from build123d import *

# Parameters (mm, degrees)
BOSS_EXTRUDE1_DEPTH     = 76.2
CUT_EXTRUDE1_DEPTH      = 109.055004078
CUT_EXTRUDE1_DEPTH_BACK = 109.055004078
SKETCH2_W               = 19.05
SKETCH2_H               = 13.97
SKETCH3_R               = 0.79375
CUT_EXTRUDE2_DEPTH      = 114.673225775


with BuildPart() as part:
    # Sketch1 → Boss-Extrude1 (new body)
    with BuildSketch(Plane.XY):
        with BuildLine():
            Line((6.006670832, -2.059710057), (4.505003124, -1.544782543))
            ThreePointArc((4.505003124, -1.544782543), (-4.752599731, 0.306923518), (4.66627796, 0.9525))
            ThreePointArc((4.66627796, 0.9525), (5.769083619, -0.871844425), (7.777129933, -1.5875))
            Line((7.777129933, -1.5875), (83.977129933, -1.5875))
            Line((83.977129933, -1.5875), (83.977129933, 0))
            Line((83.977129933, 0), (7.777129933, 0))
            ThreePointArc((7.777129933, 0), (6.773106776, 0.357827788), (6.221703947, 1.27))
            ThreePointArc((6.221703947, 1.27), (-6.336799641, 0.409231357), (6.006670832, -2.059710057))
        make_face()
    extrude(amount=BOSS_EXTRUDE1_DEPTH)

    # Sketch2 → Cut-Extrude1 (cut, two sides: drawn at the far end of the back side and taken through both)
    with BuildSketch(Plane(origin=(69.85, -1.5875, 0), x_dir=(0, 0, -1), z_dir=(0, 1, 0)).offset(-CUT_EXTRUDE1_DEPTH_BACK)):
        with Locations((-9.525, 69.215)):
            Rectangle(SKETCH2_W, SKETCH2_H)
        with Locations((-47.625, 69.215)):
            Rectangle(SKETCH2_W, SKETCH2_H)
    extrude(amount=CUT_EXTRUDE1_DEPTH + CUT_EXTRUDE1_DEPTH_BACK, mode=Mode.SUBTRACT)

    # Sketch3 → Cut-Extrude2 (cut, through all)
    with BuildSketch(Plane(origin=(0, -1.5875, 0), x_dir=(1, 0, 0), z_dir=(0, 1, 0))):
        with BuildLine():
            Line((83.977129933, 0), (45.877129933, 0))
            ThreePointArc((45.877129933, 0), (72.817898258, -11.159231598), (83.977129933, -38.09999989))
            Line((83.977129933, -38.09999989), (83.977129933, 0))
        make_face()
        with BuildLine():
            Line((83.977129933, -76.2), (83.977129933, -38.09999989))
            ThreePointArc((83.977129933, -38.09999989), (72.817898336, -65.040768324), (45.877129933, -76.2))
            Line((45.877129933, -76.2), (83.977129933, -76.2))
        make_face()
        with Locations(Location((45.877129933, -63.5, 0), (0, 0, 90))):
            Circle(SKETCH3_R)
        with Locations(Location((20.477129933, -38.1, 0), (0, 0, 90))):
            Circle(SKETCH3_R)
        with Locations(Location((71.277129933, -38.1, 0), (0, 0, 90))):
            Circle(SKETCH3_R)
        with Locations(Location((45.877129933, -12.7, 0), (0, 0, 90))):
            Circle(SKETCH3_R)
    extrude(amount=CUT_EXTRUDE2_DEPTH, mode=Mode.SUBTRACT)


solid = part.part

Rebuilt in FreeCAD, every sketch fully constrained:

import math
import FreeCAD as App
import Part
import Sketcher
Q = App.Units.Quantity

doc = App.newDocument("Part")
params = doc.addObject("Spreadsheet::Sheet", "Params")
for row, (alias, value) in enumerate([
    ("sketch1_width", "3 in"),
    ("sketch1_radius", "0.25 in"),
    ("sketch1_radius2", "0.1875 in"),
    ("sketch1_radius3", "0.125 in"),
    ("pad1_length", "3 in"),
    ("sketch2_width", "0.55 in"),
    ("sketch2_height", "0.75 in"),
    ("sketch3_radius", "1.5 in"),
    ("sketch3_diameter", "0.0625 in"),
], start=1):
    params.set(f"A{row}", alias)
    params.set(f"B{row}", "=" + value)
    params.setAlias(f"B{row}", alias)

body = doc.addObject("PartDesign::Body", "Body")

sketch1 = body.newObject("Sketcher::SketchObject", "Sketch")
sketch1.AttachmentSupport = (doc.getObject("XY_Plane"), [""])
sketch1.MapMode = "FlatFace"
sketch1.addGeometry([
    Part.LineSegment(App.Vector(6, -2.1, 0), App.Vector(4.5, -1.5, 0)),
    Part.ArcOfCircle(Part.Circle(App.Vector(0, 0, 0), App.Vector(0, 0, 1), 4.8), math.radians(12), math.radians(341)),
    Part.ArcOfCircle(Part.Circle(App.Vector(7.8, 1.6, 0), App.Vector(0, 0, 1), 3.2), math.radians(-168), math.radians(-90)),
    Part.LineSegment(App.Vector(7.8, -1.6, 0), App.Vector(84, -1.6, 0)),
    Part.LineSegment(App.Vector(84, -1.6, 0), App.Vector(84, 0, 0)),
    Part.LineSegment(App.Vector(84, 0, 0), App.Vector(7.8, 0, 0)),
    Part.ArcOfCircle(Part.Circle(App.Vector(7.8, 1.6, 0), App.Vector(0, 0, 1), 1.6), math.radians(-168), math.radians(-90)),
    Part.ArcOfCircle(Part.Circle(App.Vector(0, 0, 0), App.Vector(0, 0, 1), 6.3), math.radians(12), math.radians(341)),
], False)
sketch1.addConstraint([
    Sketcher.Constraint("Coincident", 0, 2, 1, 2),
    Sketcher.Constraint("Tangent", 1, 1, 2, 1),
    Sketcher.Constraint("Tangent", 2, 2, 3, 1),
    Sketcher.Constraint("Coincident", 3, 2, 4, 1),
    Sketcher.Constraint("Coincident", 4, 2, 5, 1),
    Sketcher.Constraint("Tangent", 5, 2, 6, 2),
    Sketcher.Constraint("Tangent", 6, 1, 7, 1),
    Sketcher.Constraint("Coincident", 7, 2, 0, 1),
    Sketcher.Constraint("Horizontal", 3),
    Sketcher.Constraint("Vertical", 4),
    Sketcher.Constraint("Horizontal", 5),
    Sketcher.Constraint("Coincident", 1, 3, -1, 1),
    Sketcher.Constraint("Coincident", 7, 3, -1, 1),
    Sketcher.Constraint("Coincident", 6, 3, 2, 3),
    Sketcher.Constraint("PointOnObject", 4, 2, -1),
    Sketcher.Constraint("DistanceX", 3, 1, 3, 2, Q("3 in")),
    Sketcher.Constraint("Radius", 7, Q("0.25 in")),
    Sketcher.Constraint("Radius", 1, Q("0.1875 in")),
    Sketcher.Constraint("Radius", 2, Q("0.125 in")),
    Sketcher.Constraint("DistanceX", -1, 1, 7, 2, 6.006671),
    Sketcher.Constraint("DistanceX", -1, 1, 0, 2, 4.505003),
])
sketch1.setExpression("Constraints[15]", "Params.sketch1_width")
sketch1.setExpression("Constraints[16]", "Params.sketch1_radius")
sketch1.setExpression("Constraints[17]", "Params.sketch1_radius2")
sketch1.setExpression("Constraints[18]", "Params.sketch1_radius3")
pad1 = body.newObject("PartDesign::Pad", "Pad")
pad1.Profile = sketch1
pad1.setExpression("Length", "Params.pad1_length")

sketch2 = body.newObject("Sketcher::SketchObject", "Sketch001")
sketch2.AttachmentSupport = (doc.getObject("XZ_Plane"), [""])
sketch2.MapMode = "FlatFace"
sketch2.AttachmentOffset = App.Placement(App.Vector(0, 0, 0.0625 * 25.4), App.Rotation())
sketch2.addGeometry([
    Part.LineSegment(App.Vector(-6, 19, 0), App.Vector(8, 19, 0)),
    Part.LineSegment(App.Vector(8, 19, 0), App.Vector(8, 0, 0)),
    Part.LineSegment(App.Vector(8, 0, 0), App.Vector(-6, 0, 0)),
    Part.LineSegment(App.Vector(-6, 0, 0), App.Vector(-6, 19, 0)),
    Part.LineSegment(App.Vector(-6, 57, 0), App.Vector(8, 57, 0)),
    Part.LineSegment(App.Vector(8, 57, 0), App.Vector(8, 38, 0)),
    Part.LineSegment(App.Vector(8, 38, 0), App.Vector(-6, 38, 0)),
    Part.LineSegment(App.Vector(-6, 38, 0), App.Vector(-6, 57, 0)),
], False)
sketch2.addConstraint([
    Sketcher.Constraint("Coincident", 0, 2, 1, 1),
    Sketcher.Constraint("Coincident", 1, 2, 2, 1),
    Sketcher.Constraint("Coincident", 2, 2, 3, 1),
    Sketcher.Constraint("Coincident", 3, 2, 0, 1),
    Sketcher.Constraint("Coincident", 4, 2, 5, 1),
    Sketcher.Constraint("Coincident", 5, 2, 6, 1),
    Sketcher.Constraint("Coincident", 6, 2, 7, 1),
    Sketcher.Constraint("Coincident", 7, 2, 4, 1),
    Sketcher.Constraint("Horizontal", 0),
    Sketcher.Constraint("Vertical", 1),
    Sketcher.Constraint("Horizontal", 2),
    Sketcher.Constraint("Vertical", 3),
    Sketcher.Constraint("Horizontal", 4),
    Sketcher.Constraint("Vertical", 5),
    Sketcher.Constraint("Horizontal", 6),
    Sketcher.Constraint("Vertical", 7),
    Sketcher.Constraint("PointOnObject", 1, 2, -1),
    Sketcher.Constraint("Vertical", 1, 2, 4, 2),
    Sketcher.Constraint("Vertical", 3, 2, 6, 2),
    Sketcher.Constraint("Equal", 3, 5),
    Sketcher.Constraint("DistanceX", 0, 1, 0, 2, Q("0.55 in")),
    Sketcher.Constraint("DistanceY", 1, 2, 1, 1, Q("0.75 in")),
    Sketcher.Constraint("DistanceX", -1, 1, 0, 2, Q("0.3 in")),
    Sketcher.Constraint("DistanceY", -1, 1, 5, 2, Q("1.5 in")),
])
sketch2.setExpression("Constraints[20]", "Params.sketch2_width")
sketch2.setExpression("Constraints[21]", "Params.sketch2_height")
pocket1 = body.newObject("PartDesign::Pocket", "Pocket")
pocket1.Profile = sketch2
pocket1.Type = "ThroughAll"
pocket1.Midplane = True

sketch3 = body.newObject("Sketcher::SketchObject", "Sketch002")
sketch3.AttachmentSupport = (doc.getObject("XZ_Plane"), [""])
sketch3.MapMode = "FlatFace"
sketch3.AttachmentOffset = App.Placement(App.Vector(0, 0, 0.0625 * 25.4), App.Rotation())
sketch3.addGeometry([
    Part.LineSegment(App.Vector(84, 0, 0), App.Vector(45.9, 0, 0)),
    Part.ArcOfCircle(Part.Circle(App.Vector(45.9, 38.1, 0), App.Vector(0, 0, 1), 38.1), math.radians(-90), math.radians(0)),
    Part.LineSegment(App.Vector(84, 38.1, 0), App.Vector(84, 0, 0)),
    Part.LineSegment(App.Vector(84, 76.2, 0), App.Vector(84, 38.1, 0)),
    Part.ArcOfCircle(Part.Circle(App.Vector(45.9, 38.1, 0), App.Vector(0, 0, 1), 38.1), math.radians(0), math.radians(90)),
    Part.LineSegment(App.Vector(45.9, 76.2, 0), App.Vector(84, 76.2, 0)),
    Part.Circle(App.Vector(45.9, 63.5, 0), App.Vector(0, 0, 1), 0.8),
    Part.Circle(App.Vector(20.5, 38.1, 0), App.Vector(0, 0, 1), 0.8),
    Part.Circle(App.Vector(71.3, 38.1, 0), App.Vector(0, 0, 1), 0.8),
    Part.Circle(App.Vector(45.9, 12.7, 0), App.Vector(0, 0, 1), 0.8),
], False)
sketch3.addConstraint([
    Sketcher.Constraint("Tangent", 0, 2, 1, 1),
    Sketcher.Constraint("Tangent", 1, 2, 2, 1),
    Sketcher.Constraint("Coincident", 2, 2, 0, 1),
    Sketcher.Constraint("Tangent", 3, 2, 4, 1),
    Sketcher.Constraint("Tangent", 4, 2, 5, 1),
    Sketcher.Constraint("Coincident", 5, 2, 3, 1),
    Sketcher.Constraint("Horizontal", 0),
    Sketcher.Constraint("Vertical", 2),
    Sketcher.Constraint("Vertical", 3),
    Sketcher.Constraint("Horizontal", 5),
    Sketcher.Constraint("Coincident", 4, 3, 1, 3),
    Sketcher.Constraint("Equal", 1, 4),
    Sketcher.Constraint("Equal", 6, 7),
    Sketcher.Constraint("Equal", 7, 8),
    Sketcher.Constraint("Equal", 8, 9),
    Sketcher.Constraint("PointOnObject", 0, 2, -1),
    Sketcher.Constraint("Horizontal", 4, 3, 7, 3),
    Sketcher.Constraint("Horizontal", 7, 3, 8, 3),
    Sketcher.Constraint("Vertical", 4, 3, 6, 3),
    Sketcher.Constraint("Vertical", 6, 3, 9, 3),
    Sketcher.Constraint("Radius", 1, Q("1.5 in")),
    Sketcher.Constraint("Diameter", 6, Q("0.0625 in")),
    Sketcher.Constraint("DistanceY", 4, 3, 6, 3, Q("1 in")),
    Sketcher.Constraint("DistanceX", 7, 3, 1, 3, Q("1 in")),
    Sketcher.Constraint("DistanceX", 1, 3, 8, 3, Q("1 in")),
    Sketcher.Constraint("DistanceY", 9, 3, 1, 3, Q("1 in")),
    Sketcher.Constraint("DistanceX", -1, 1, 1, 3, 45.87713),
])
sketch3.setExpression("Constraints[20]", "Params.sketch3_radius")
sketch3.setExpression("Constraints[21]", "Params.sketch3_diameter")
pocket2 = body.newObject("PartDesign::Pocket", "Pocket001")
pocket2.Profile = sketch3
pocket2.Type = "ThroughAll"

doc.recompute()
